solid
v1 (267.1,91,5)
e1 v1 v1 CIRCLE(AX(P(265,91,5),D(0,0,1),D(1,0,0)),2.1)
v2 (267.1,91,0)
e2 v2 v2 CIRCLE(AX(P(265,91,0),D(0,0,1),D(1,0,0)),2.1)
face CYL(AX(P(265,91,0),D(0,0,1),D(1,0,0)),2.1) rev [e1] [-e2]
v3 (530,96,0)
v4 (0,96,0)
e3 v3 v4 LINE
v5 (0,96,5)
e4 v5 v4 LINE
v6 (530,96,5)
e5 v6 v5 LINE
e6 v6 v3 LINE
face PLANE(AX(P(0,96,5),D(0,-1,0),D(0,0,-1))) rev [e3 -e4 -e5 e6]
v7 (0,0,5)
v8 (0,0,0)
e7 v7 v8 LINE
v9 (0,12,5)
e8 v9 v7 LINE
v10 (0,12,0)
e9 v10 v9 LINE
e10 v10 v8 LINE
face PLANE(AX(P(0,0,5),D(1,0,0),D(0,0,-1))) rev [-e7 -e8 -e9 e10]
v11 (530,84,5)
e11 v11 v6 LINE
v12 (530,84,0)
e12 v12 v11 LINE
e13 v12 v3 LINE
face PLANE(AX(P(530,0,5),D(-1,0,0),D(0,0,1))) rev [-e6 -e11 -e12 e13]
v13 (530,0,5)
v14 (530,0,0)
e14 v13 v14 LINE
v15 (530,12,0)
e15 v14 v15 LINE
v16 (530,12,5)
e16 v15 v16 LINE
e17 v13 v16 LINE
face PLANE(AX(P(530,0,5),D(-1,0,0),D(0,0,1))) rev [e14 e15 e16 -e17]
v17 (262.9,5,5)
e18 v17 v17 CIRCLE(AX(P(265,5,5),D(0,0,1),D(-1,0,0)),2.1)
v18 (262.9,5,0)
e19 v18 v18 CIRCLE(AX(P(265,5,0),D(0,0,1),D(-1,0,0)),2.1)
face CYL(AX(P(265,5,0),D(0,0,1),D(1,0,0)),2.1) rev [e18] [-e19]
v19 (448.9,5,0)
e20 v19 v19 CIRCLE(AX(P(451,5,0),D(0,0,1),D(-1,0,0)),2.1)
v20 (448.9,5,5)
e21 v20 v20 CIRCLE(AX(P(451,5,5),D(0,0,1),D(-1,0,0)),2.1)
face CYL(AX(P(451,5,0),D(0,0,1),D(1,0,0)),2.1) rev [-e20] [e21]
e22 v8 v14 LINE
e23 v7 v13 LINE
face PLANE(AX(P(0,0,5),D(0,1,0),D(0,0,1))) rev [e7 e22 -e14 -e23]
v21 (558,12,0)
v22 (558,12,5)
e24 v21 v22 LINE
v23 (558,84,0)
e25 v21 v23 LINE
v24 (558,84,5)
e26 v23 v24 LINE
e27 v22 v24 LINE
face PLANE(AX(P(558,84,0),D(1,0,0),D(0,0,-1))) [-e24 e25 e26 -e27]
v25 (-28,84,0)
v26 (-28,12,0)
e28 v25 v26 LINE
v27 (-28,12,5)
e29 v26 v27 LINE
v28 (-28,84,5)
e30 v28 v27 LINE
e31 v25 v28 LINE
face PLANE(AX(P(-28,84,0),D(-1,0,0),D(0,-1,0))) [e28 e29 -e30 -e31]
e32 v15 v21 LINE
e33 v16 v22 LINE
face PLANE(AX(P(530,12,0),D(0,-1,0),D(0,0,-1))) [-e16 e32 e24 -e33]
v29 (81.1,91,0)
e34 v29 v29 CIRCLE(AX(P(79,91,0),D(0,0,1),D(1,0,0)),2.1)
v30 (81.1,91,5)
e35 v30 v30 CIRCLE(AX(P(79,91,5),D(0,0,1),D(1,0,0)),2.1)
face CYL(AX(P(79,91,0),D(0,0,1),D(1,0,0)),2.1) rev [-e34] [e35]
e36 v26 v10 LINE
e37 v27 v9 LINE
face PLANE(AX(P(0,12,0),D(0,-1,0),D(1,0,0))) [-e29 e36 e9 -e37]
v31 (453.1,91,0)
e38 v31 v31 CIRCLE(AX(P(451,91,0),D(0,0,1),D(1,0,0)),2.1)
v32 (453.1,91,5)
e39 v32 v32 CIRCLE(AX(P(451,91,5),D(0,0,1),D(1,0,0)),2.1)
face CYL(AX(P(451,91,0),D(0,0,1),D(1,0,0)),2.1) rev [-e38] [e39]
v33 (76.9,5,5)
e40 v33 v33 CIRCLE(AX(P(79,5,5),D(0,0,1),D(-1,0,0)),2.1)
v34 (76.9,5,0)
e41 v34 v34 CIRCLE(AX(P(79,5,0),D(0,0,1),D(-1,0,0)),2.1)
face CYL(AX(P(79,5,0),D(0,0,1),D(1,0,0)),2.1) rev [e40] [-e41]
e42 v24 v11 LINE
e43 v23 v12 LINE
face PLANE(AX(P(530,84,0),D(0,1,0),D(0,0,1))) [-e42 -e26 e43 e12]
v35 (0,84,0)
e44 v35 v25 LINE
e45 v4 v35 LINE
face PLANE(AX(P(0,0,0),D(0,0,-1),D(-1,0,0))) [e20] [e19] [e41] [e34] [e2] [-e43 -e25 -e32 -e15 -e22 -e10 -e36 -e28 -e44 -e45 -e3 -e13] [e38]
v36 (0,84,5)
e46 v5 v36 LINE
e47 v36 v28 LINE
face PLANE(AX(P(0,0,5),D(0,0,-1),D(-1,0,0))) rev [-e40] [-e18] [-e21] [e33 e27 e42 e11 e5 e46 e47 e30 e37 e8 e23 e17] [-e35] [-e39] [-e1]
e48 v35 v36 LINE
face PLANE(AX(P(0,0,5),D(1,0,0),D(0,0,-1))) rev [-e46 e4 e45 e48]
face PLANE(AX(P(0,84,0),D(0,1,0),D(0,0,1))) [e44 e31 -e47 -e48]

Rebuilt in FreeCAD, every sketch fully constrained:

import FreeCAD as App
import Part
import Sketcher
from FreeCAD import Vector
Q = App.Units.Quantity

doc = App.newDocument("Part")
params = doc.addObject("Spreadsheet::Sheet", "Params")
for row, (alias, value) in enumerate([
    ("sketch1_width", "530 mm"),
    ("sketch1_height", "96 mm"),
    ("pad1_length", "5 mm"),
    ("sketch2_diameter", "4.2 mm"),
    ("pocket1_length", "5 mm"),
    ("sketch3_width", "28 mm"),
    ("sketch3_height", "72 mm"),
    ("pad2_length", "5 mm"),
], start=1):
    params.set(f"A{row}", alias)
    params.set(f"B{row}", "=" + value)
    params.setAlias(f"B{row}", alias)

body = doc.addObject("PartDesign::Body", "Body")

sketch1 = body.newObject("Sketcher::SketchObject", "Sketch")
sketch1.AttachmentSupport = (doc.getObject("XY_Plane"), [""])
sketch1.MapMode = "FlatFace"
sketch1.addGeometry(Part.LineSegment(Vector(0, 96, 0), Vector(0, 0, 0)), False)
sketch1.addGeometry(Part.LineSegment(Vector(0, 0, 0), Vector(530, 0, 0)), False)
sketch1.addGeometry(Part.LineSegment(Vector(530, 0, 0), Vector(530, 96, 0)), False)
sketch1.addGeometry(Part.LineSegment(Vector(530, 96, 0), Vector(0, 96, 0)), False)
sketch1.addConstraint(Sketcher.Constraint("Coincident", 0, 2, 1, 1))
sketch1.addConstraint(Sketcher.Constraint("Coincident", 1, 2, 2, 1))
sketch1.addConstraint(Sketcher.Constraint("Coincident", 2, 2, 3, 1))
sketch1.addConstraint(Sketcher.Constraint("Coincident", 3, 2, 0, 1))
sketch1.addConstraint(Sketcher.Constraint("Vertical", 0))
sketch1.addConstraint(Sketcher.Constraint("Horizontal", 1))
sketch1.addConstraint(Sketcher.Constraint("Vertical", 2))
sketch1.addConstraint(Sketcher.Constraint("Horizontal", 3))
sketch1.addConstraint(Sketcher.Constraint("Coincident", 0, 2, -1, 1))
sketch1.addConstraint(Sketcher.Constraint("DistanceX", 1, 1, 1, 2, Q("530 mm")))
sketch1.addConstraint(Sketcher.Constraint("DistanceY", 0, 2, 0, 1, Q("96 mm")))
sketch1.setExpression("Constraints[9]", "Params.sketch1_width")
sketch1.setExpression("Constraints[10]", "Params.sketch1_height")
pad1 = body.newObject("PartDesign::Pad", "Pad")
pad1.Profile = sketch1
pad1.setExpression("Length", "Params.pad1_length")

sketch2 = body.newObject("Sketcher::SketchObject", "Sketch001")
sketch2.AttachmentSupport = (doc.getObject("XY_Plane"), [""])
sketch2.MapMode = "FlatFace"
sketch2.AttachmentOffset = App.Placement(Vector(0, 0, 5), App.Rotation())
sketch2.addGeometry(Part.Circle(Vector(79, 91, 0), Vector(0, 0, 1), 2.1), False)
sketch2.addGeometry(Part.Circle(Vector(265, 91, 0), Vector(0, 0, 1), 2.1), False)
sketch2.addGeometry(Part.Circle(Vector(451, 91, 0), Vector(0, 0, 1), 2.1), False)
sketch2.addGeometry(Part.Circle(Vector(451, 5, 0), Vector(0, 0, 1), 2.1), False)
sketch2.addGeometry(Part.Circle(Vector(265, 5, 0), Vector(0, 0, 1), 2.1), False)
sketch2.addGeometry(Part.Circle(Vector(79, 5, 0), Vector(0, 0, 1), 2.1), False)
sketch2.addConstraint(Sketcher.Constraint("Equal", 0, 1))
sketch2.addConstraint(Sketcher.Constraint("Equal", 1, 2))
sketch2.addConstraint(Sketcher.Constraint("Equal", 2, 3))
sketch2.addConstraint(Sketcher.Constraint("Equal", 3, 4))
sketch2.addConstraint(Sketcher.Constraint("Equal", 4, 5))
sketch2.addConstraint(Sketcher.Constraint("Horizontal", 0, 3, 1, 3))
sketch2.addConstraint(Sketcher.Constraint("Horizontal", 1, 3, 2, 3))
sketch2.addConstraint(Sketcher.Constraint("Horizontal", 3, 3, 4, 3))
sketch2.addConstraint(Sketcher.Constraint("Horizontal", 4, 3, 5, 3))
sketch2.addConstraint(Sketcher.Constraint("Vertical", 2, 3, 3, 3))
sketch2.addConstraint(Sketcher.Constraint("Vertical", 1, 3, 4, 3))
sketch2.addConstraint(Sketcher.Constraint("Vertical", 0, 3, 5, 3))
sketch2.addConstraint(Sketcher.Constraint("Diameter", 0, Q("4.2 mm")))
sketch2.addConstraint(Sketcher.Constraint("DistanceX", -1, 1, 0, 3, Q("79 mm")))
sketch2.addConstraint(Sketcher.Constraint("DistanceY", -1, 1, 0, 3, Q("91 mm")))
sketch2.addConstraint(Sketcher.Constraint("DistanceX", -1, 1, 1, 3, Q("265 mm")))
sketch2.addConstraint(Sketcher.Constraint("DistanceX", -1, 1, 2, 3, Q("451 mm")))
sketch2.addConstraint(Sketcher.Constraint("DistanceY", -1, 1, 3, 3, Q("5 mm")))
sketch2.setExpression("Constraints[12]", "Params.sketch2_diameter")
pocket1 = body.newObject("PartDesign::Pocket", "Pocket")
pocket1.Profile = sketch2
pocket1.setExpression("Length", "Params.pocket1_length")

sketch3 = body.newObject("Sketcher::SketchObject", "Sketch002")
sketch3.AttachmentSupport = (doc.getObject("XY_Plane"), [""])
sketch3.MapMode = "FlatFace"
sketch3.AttachmentOffset = App.Placement(Vector(0, 0, 5), App.Rotation())
sketch3.addGeometry(Part.LineSegment(Vector(530, 84, 0), Vector(530, 12, 0)), False)
sketch3.addGeometry(Part.LineSegment(Vector(530, 12, 0), Vector(558, 12, 0)), False)
sketch3.addGeometry(Part.LineSegment(Vector(558, 12, 0), Vector(558, 84, 0)), False)
sketch3.addGeometry(Part.LineSegment(Vector(558, 84, 0), Vector(530, 84, 0)), False)
sketch3.addGeometry(Part.LineSegment(Vector(-28, 84, 0), Vector(-28, 12, 0)), False)
sketch3.addGeometry(Part.LineSegment(Vector(-28, 12, 0), Vector(0, 12, 0)), False)
sketch3.addGeometry(Part.LineSegment(Vector(0, 12, 0), Vector(0, 84, 0)), False)
sketch3.addGeometry(Part.LineSegment(Vector(0, 84, 0), Vector(-28, 84, 0)), False)
sketch3.addConstraint(Sketcher.Constraint("Coincident", 0, 2, 1, 1))
sketch3.addConstraint(Sketcher.Constraint("Coincident", 1, 2, 2, 1))
sketch3.addConstraint(Sketcher.Constraint("Coincident", 2, 2, 3, 1))
sketch3.addConstraint(Sketcher.Constraint("Coincident", 3, 2, 0, 1))
sketch3.addConstraint(Sketcher.Constraint("Coincident", 4, 2, 5, 1))
sketch3.addConstraint(Sketcher.Constraint("Coincident", 5, 2, 6, 1))
sketch3.addConstraint(Sketcher.Constraint("Coincident", 6, 2, 7, 1))
sketch3.addConstraint(Sketcher.Constraint("Coincident", 7, 2, 4, 1))
sketch3.addConstraint(Sketcher.Constraint("Vertical", 0))
sketch3.addConstraint(Sketcher.Constraint("Horizontal", 1))
sketch3.addConstraint(Sketcher.Constraint("Vertical", 2))
sketch3.addConstraint(Sketcher.Constraint("Horizontal", 3))
sketch3.addConstraint(Sketcher.Constraint("Vertical", 4))
sketch3.addConstraint(Sketcher.Constraint("Horizontal", 5))
sketch3.addConstraint(Sketcher.Constraint("Vertical", 6))
sketch3.addConstraint(Sketcher.Constraint("Horizontal", 7))
sketch3.addConstraint(Sketcher.Constraint("PointOnObject", 5, 2, -2))
sketch3.addConstraint(Sketcher.Constraint("Horizontal", 1, 2, 4, 2))
sketch3.addConstraint(Sketcher.Constraint("Horizontal", 3, 2, 6, 2))
sketch3.addConstraint(Sketcher.Constraint("Equal", 3, 5))
sketch3.addConstraint(Sketcher.Constraint("DistanceX", 1, 1, 1, 2, Q("28 mm")))
sketch3.addConstraint(Sketcher.Constraint("DistanceY", 0, 2, 0, 1, Q("72 mm")))
sketch3.addConstraint(Sketcher.Constraint("DistanceX", -1, 1, 0, 2, Q("530 mm")))
sketch3.addConstraint(Sketcher.Constraint("DistanceY", -1, 1, 0, 2, Q("12 mm")))
sketch3.setExpression("Constraints[20]", "Params.sketch3_width")
sketch3.setExpression("Constraints[21]", "Params.sketch3_height")
pad2 = body.newObject("PartDesign::Pad", "Pad001")
pad2.Profile = sketch3
pad2.setExpression("Length", "Params.pad2_length")
pad2.Reversed = True

doc.recompute()
